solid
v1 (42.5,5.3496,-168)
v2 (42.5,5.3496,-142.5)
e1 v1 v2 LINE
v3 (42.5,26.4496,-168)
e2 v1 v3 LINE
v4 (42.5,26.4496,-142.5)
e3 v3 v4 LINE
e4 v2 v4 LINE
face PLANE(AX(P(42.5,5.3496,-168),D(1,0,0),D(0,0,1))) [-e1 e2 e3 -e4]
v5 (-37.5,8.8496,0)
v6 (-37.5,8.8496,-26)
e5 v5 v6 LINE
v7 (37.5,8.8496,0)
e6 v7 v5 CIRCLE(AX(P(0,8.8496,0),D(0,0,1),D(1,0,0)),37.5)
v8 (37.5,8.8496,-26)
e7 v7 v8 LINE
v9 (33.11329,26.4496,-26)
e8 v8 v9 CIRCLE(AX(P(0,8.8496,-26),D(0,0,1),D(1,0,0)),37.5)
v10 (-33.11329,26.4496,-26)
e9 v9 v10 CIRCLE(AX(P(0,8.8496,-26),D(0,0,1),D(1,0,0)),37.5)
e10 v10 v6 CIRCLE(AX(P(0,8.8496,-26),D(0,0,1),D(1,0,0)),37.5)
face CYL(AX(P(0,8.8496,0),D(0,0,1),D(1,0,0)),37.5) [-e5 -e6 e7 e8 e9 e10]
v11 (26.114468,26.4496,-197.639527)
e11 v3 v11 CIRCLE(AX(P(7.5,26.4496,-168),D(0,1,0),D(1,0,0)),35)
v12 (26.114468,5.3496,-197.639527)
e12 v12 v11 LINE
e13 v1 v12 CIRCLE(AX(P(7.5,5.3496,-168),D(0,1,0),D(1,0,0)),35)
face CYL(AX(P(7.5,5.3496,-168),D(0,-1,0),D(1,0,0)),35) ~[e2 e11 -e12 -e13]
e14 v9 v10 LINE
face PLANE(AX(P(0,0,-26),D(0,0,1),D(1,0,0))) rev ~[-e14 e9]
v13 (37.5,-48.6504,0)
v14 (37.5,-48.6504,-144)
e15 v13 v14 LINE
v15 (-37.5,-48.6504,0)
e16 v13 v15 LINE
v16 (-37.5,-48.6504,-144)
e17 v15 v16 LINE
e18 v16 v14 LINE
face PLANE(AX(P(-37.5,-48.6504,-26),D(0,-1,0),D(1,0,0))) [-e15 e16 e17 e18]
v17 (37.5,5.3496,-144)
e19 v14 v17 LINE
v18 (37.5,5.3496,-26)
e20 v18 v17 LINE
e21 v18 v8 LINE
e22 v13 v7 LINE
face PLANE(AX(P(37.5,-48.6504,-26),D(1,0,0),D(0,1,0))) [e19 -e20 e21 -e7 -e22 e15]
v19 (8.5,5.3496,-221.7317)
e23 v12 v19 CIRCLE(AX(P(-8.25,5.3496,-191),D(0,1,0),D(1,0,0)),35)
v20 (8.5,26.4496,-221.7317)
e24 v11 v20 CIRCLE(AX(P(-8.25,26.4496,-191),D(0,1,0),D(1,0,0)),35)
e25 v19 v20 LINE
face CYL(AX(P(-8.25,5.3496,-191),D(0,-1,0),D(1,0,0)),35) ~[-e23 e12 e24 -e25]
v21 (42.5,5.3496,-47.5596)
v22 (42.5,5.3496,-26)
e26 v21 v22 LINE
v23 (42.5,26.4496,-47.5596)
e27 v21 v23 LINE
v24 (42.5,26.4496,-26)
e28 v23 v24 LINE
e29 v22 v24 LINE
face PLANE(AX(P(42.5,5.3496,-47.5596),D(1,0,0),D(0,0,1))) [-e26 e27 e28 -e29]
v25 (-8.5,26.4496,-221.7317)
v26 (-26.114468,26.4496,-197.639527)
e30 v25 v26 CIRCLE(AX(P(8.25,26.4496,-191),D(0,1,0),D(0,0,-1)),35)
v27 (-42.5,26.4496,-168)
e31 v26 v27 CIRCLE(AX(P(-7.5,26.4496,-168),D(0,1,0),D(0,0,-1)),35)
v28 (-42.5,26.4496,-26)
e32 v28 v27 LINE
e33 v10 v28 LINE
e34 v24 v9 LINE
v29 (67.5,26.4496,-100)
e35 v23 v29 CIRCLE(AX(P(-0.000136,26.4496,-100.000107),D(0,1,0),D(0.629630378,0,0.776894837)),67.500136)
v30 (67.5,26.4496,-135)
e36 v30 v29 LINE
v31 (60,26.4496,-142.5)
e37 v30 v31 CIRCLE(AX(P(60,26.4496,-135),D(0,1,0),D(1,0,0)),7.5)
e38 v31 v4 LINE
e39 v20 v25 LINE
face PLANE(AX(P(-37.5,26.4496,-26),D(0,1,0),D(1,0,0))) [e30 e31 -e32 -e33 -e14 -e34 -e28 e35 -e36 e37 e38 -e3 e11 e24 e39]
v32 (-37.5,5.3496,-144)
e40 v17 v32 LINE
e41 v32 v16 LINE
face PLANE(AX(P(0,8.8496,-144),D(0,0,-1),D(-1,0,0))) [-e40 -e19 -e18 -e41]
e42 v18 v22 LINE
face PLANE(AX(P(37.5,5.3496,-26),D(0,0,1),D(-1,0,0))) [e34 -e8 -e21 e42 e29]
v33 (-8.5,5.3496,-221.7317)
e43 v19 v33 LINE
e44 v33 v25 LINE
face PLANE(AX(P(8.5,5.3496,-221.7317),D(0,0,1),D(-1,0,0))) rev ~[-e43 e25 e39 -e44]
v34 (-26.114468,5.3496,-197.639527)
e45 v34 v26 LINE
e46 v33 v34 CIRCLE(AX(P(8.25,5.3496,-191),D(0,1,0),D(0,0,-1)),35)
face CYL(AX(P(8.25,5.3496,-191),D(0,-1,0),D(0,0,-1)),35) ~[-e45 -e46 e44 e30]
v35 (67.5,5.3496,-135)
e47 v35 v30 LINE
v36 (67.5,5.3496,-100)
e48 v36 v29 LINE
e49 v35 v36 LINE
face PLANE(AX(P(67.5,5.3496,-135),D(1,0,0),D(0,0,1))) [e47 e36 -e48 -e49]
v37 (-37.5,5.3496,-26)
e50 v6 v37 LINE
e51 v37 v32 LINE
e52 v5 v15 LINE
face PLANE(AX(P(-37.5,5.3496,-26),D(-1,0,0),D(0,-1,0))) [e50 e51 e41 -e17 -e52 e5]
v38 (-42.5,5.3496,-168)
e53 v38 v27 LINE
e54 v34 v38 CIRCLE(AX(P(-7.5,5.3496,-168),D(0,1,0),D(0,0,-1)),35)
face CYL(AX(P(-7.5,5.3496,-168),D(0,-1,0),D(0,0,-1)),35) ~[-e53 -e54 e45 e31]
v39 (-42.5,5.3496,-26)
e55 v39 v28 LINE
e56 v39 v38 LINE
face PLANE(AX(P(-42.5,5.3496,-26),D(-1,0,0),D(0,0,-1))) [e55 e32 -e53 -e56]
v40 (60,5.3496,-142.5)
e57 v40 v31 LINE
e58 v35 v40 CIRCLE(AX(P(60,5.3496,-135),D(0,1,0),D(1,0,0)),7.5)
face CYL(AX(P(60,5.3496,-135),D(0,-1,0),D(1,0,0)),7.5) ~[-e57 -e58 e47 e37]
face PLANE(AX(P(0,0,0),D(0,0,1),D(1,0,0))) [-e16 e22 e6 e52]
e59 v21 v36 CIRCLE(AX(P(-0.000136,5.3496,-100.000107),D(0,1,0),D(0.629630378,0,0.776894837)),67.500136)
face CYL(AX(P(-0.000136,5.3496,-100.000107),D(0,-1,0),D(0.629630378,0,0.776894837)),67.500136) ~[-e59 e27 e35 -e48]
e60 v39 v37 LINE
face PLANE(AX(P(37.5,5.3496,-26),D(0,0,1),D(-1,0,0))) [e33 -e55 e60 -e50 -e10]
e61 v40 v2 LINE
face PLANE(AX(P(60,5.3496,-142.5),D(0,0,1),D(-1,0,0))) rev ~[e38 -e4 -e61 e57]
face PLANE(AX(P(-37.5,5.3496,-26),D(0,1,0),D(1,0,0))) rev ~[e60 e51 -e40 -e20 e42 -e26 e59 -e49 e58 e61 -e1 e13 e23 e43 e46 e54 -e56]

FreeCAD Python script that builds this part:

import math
import FreeCAD as App
import Part
import Sketcher
Q = App.Units.Quantity


def add_polygon(sketch, points):
    """Adds a closed chain of lines whose ends are joined by coincident constraints."""
    first, n = sketch.GeometryCount, len(points)
    for a, b in zip(points, points[1:] + points[:1]):
        sketch.addGeometry(Part.LineSegment(App.Vector(*a, 0), App.Vector(*b, 0)), False)
    for i in range(n):
        sketch.addConstraint(Sketcher.Constraint("Coincident", first + i, 2, first + (i + 1) % n, 1))

doc = App.newDocument("Part")
body = doc.addObject("PartDesign::Body", "Body")

# Sketch on XY plane
sketch1 = body.newObject("Sketcher::SketchObject", "Sketch")
sketch1.AttachmentSupport = (doc.getObject("XY_Plane"), [""])
sketch1.MapMode = "FlatFace"
sketch1.addGeometry(Part.ArcOfCircle(Part.Circle(App.Vector(0, 9, 0), App.Vector(0, 0, 1), 38), math.radians(0), math.radians(180)), False)
sketch1.addGeometry(Part.LineSegment(App.Vector(-38, 9, 0), App.Vector(-38, -49, 0)), False)
sketch1.addGeometry(Part.LineSegment(App.Vector(-38, -49, 0), App.Vector(38, -49, 0)), False)
sketch1.addGeometry(Part.LineSegment(App.Vector(38, -49, 0), App.Vector(38, 9, 0)), False)
sketch1.addConstraint(Sketcher.Constraint("Tangent", 0, 2, 1, 1))
sketch1.addConstraint(Sketcher.Constraint("Coincident", 1, 2, 2, 1))
sketch1.addConstraint(Sketcher.Constraint("Coincident", 2, 2, 3, 1))
sketch1.addConstraint(Sketcher.Constraint("Tangent", 3, 2, 0, 1))
sketch1.addConstraint(Sketcher.Constraint("Vertical", 1))
sketch1.addConstraint(Sketcher.Constraint("Horizontal", 2))
sketch1.addConstraint(Sketcher.Constraint("Vertical", 3))
sketch1.addConstraint(Sketcher.Constraint("PointOnObject", 0, 3, -2))
sketch1.addConstraint(Sketcher.Constraint("Radius", 0, Q("37.5 mm")))
sketch1.addConstraint(Sketcher.Constraint("DistanceY", 1, 2, 1, 1, Q("57.5 mm")))
sketch1.addConstraint(Sketcher.Constraint("DistanceY", -1, 1, 0, 3, Q("8.8496 mm")))
pad1 = body.newObject("PartDesign::Pad", "Pad")
pad1.Profile = sketch1
pad1.Length = 26
pad1.Reversed = True

# Sketch on XY plane
sketch2 = body.newObject("Sketcher::SketchObject", "Sketch001")
sketch2.AttachmentSupport = (doc.getObject("XY_Plane"), [""])
sketch2.MapMode = "FlatFace"
sketch2.AttachmentOffset = App.Placement(App.Vector(0, 0, -26), App.Rotation())
add_polygon(sketch2, [(38, 5), (38, -49), (-38, -49), (-38, 5)])  # lines 0-3
sketch2.addConstraint(Sketcher.Constraint("Vertical", 0))
sketch2.addConstraint(Sketcher.Constraint("Horizontal", 1))
sketch2.addConstraint(Sketcher.Constraint("Vertical", 2))
sketch2.addConstraint(Sketcher.Constraint("Horizontal", 3))
sketch2.addConstraint(Sketcher.Constraint("DistanceX", 1, 2, 1, 1, Q("75 mm")))
sketch2.addConstraint(Sketcher.Constraint("DistanceY", 0, 2, 0, 1, Q("54 mm")))
sketch2.addConstraint(Sketcher.Constraint("DistanceX", -1, 1, 0, 2, Q("37.5 mm")))
sketch2.addConstraint(Sketcher.Constraint("DistanceY", 0, 2, -1, 1, Q("48.6504 mm")))
pad2 = body.newObject("PartDesign::Pad", "Pad001")
pad2.Profile = sketch2
pad2.Length = 118
pad2.Reversed = True

# Sketch on XZ plane
sketch3 = body.newObject("Sketcher::SketchObject", "Sketch002")
sketch3.AttachmentSupport = (doc.getObject("XZ_Plane"), [""])
sketch3.MapMode = "FlatFace"
sketch3.AttachmentOffset = App.Placement(App.Vector(0, 0, -5.3496), App.Rotation())
sketch3.addGeometry(Part.LineSegment(App.Vector(42, -26, 0), App.Vector(42, -48, 0)), False)
sketch3.addGeometry(Part.ArcOfCircle(Part.Circle(App.Vector(0, -100, 0), App.Vector(0, 0, 1), 67), math.radians(0), math.radians(51)), False)
sketch3.addGeometry(Part.LineSegment(App.Vector(68, -100, 0), App.Vector(68, -135, 0)), False)
sketch3.addGeometry(Part.ArcOfCircle(Part.Circle(App.Vector(60, -135, 0), App.Vector(0, 0, 1), 8), math.radians(-90), math.radians(0)), False)
sketch3.addGeometry(Part.LineSegment(App.Vector(60, -142, 0), App.Vector(42, -142, 0)), False)
sketch3.addGeometry(Part.LineSegment(App.Vector(42, -142, 0), App.Vector(42, -168, 0)), False)
sketch3.addGeometry(Part.ArcOfCircle(Part.Circle(App.Vector(8, -168, 0), App.Vector(0, 0, 1), 35), math.radians(-58), math.radians(0)), False)
sketch3.addGeometry(Part.ArcOfCircle(Part.Circle(App.Vector(-8, -191, 0), App.Vector(0, 0, 1), 35), math.radians(-61), math.radians(-11)), False)
sketch3.addGeometry(Part.LineSegment(App.Vector(8, -222, 0), App.Vector(-8, -222, 0)), False)
sketch3.addGeometry(Part.ArcOfCircle(Part.Circle(App.Vector(8, -191, 0), App.Vector(0, 0, 1), 35), math.radians(-169), math.radians(-119)), False)
sketch3.addGeometry(Part.ArcOfCircle(Part.Circle(App.Vector(-8, -168, 0), App.Vector(0, 0, 1), 35), math.radians(180), math.radians(238)), False)
sketch3.addGeometry(Part.LineSegment(App.Vector(-42, -168, 0), App.Vector(-42, -26, 0)), False)
sketch3.addGeometry(Part.LineSegment(App.Vector(-42, -26, 0), App.Vector(42, -26, 0)), False)
sketch3.addConstraint(Sketcher.Constraint("Coincident", 0, 2, 1, 2))
sketch3.addConstraint(Sketcher.Constraint("Tangent", 1, 1, 2, 1))
sketch3.addConstraint(Sketcher.Constraint("Tangent", 2, 2, 3, 2))
sketch3.addConstraint(Sketcher.Constraint("Tangent", 3, 1, 4, 1))
sketch3.addConstraint(Sketcher.Constraint("Coincident", 4, 2, 5, 1))
sketch3.addConstraint(Sketcher.Constraint("Tangent", 5, 2, 6, 2))
sketch3.addConstraint(Sketcher.Constraint("Coincident", 6, 1, 7, 2))
sketch3.addConstraint(Sketcher.Constraint("Coincident", 7, 1, 8, 1))
sketch3.addConstraint(Sketcher.Constraint("Coincident", 8, 2, 9, 2))
sketch3.addConstraint(Sketcher.Constraint("Coincident", 9, 1, 10, 2))
sketch3.addConstraint(Sketcher.Constraint("Tangent", 10, 1, 11, 1))
sketch3.addConstraint(Sketcher.Constraint("Coincident", 11, 2, 12, 1))
sketch3.addConstraint(Sketcher.Constraint("Coincident", 12, 2, 0, 1))
sketch3.addConstraint(Sketcher.Constraint("Vertical", 0))
sketch3.addConstraint(Sketcher.Constraint("Vertical", 2))
sketch3.addConstraint(Sketcher.Constraint("Horizontal", 4))
sketch3.addConstraint(Sketcher.Constraint("Vertical", 5))
sketch3.addConstraint(Sketcher.Constraint("Horizontal", 8))
sketch3.addConstraint(Sketcher.Constraint("Vertical", 11))
sketch3.addConstraint(Sketcher.Constraint("Horizontal", 12))
sketch3.addConstraint(Sketcher.Constraint("Equal", 6, 7))
sketch3.addConstraint(Sketcher.Constraint("Equal", 7, 9))
sketch3.addConstraint(Sketcher.Constraint("Equal", 9, 10))
sketch3.addConstraint(Sketcher.Constraint("Symmetric", 7, 3, 9, 3, -2))
sketch3.addConstraint(Sketcher.Constraint("Symmetric", 6, 3, 10, 3, -2))
sketch3.addConstraint(Sketcher.Constraint("PointOnObject", 1, 3, -2))
sketch3.addConstraint(Sketcher.Constraint("Vertical", 0, 2, 4, 2))
sketch3.addConstraint(Sketcher.Constraint("Radius", 6, Q("35 mm")))
sketch3.addConstraint(Sketcher.Constraint("Radius", 3, Q("7.5 mm")))
sketch3.addConstraint(Sketcher.Constraint("DistanceX", 8, 2, 8, 1, Q("17 mm")))
sketch3.addConstraint(Sketcher.Constraint("DistanceY", 2, 2, 2, 1, Q("35 mm")))
sketch3.addConstraint(Sketcher.Constraint("DistanceX", -1, 1, 3, 3, Q("60 mm")))
sketch3.addConstraint(Sketcher.Constraint("DistanceX", 10, 3, 6, 3, Q("15 mm")))
sketch3.addConstraint(Sketcher.Constraint("DistanceY", 3, 3, 12, 2, Q("109 mm")))
sketch3.addConstraint(Sketcher.Constraint("DistanceY", 11, 1, 11, 2, Q("142 mm")))
sketch3.addConstraint(Sketcher.Constraint("DistanceY", 1, 3, -1, 1, Q("100 mm")))
sketch3.addConstraint(Sketcher.Constraint("DistanceY", 7, 3, -1, 1, Q("191 mm")))
sketch3.addConstraint(Sketcher.Constraint("DistanceX", 7, 3, 9, 3, Q("16.5 mm")))
pad3 = body.newObject("PartDesign::Pad", "Pad002")
pad3.Profile = sketch3
pad3.Length = 21.1
pad3.Reversed = True

doc.recompute()
